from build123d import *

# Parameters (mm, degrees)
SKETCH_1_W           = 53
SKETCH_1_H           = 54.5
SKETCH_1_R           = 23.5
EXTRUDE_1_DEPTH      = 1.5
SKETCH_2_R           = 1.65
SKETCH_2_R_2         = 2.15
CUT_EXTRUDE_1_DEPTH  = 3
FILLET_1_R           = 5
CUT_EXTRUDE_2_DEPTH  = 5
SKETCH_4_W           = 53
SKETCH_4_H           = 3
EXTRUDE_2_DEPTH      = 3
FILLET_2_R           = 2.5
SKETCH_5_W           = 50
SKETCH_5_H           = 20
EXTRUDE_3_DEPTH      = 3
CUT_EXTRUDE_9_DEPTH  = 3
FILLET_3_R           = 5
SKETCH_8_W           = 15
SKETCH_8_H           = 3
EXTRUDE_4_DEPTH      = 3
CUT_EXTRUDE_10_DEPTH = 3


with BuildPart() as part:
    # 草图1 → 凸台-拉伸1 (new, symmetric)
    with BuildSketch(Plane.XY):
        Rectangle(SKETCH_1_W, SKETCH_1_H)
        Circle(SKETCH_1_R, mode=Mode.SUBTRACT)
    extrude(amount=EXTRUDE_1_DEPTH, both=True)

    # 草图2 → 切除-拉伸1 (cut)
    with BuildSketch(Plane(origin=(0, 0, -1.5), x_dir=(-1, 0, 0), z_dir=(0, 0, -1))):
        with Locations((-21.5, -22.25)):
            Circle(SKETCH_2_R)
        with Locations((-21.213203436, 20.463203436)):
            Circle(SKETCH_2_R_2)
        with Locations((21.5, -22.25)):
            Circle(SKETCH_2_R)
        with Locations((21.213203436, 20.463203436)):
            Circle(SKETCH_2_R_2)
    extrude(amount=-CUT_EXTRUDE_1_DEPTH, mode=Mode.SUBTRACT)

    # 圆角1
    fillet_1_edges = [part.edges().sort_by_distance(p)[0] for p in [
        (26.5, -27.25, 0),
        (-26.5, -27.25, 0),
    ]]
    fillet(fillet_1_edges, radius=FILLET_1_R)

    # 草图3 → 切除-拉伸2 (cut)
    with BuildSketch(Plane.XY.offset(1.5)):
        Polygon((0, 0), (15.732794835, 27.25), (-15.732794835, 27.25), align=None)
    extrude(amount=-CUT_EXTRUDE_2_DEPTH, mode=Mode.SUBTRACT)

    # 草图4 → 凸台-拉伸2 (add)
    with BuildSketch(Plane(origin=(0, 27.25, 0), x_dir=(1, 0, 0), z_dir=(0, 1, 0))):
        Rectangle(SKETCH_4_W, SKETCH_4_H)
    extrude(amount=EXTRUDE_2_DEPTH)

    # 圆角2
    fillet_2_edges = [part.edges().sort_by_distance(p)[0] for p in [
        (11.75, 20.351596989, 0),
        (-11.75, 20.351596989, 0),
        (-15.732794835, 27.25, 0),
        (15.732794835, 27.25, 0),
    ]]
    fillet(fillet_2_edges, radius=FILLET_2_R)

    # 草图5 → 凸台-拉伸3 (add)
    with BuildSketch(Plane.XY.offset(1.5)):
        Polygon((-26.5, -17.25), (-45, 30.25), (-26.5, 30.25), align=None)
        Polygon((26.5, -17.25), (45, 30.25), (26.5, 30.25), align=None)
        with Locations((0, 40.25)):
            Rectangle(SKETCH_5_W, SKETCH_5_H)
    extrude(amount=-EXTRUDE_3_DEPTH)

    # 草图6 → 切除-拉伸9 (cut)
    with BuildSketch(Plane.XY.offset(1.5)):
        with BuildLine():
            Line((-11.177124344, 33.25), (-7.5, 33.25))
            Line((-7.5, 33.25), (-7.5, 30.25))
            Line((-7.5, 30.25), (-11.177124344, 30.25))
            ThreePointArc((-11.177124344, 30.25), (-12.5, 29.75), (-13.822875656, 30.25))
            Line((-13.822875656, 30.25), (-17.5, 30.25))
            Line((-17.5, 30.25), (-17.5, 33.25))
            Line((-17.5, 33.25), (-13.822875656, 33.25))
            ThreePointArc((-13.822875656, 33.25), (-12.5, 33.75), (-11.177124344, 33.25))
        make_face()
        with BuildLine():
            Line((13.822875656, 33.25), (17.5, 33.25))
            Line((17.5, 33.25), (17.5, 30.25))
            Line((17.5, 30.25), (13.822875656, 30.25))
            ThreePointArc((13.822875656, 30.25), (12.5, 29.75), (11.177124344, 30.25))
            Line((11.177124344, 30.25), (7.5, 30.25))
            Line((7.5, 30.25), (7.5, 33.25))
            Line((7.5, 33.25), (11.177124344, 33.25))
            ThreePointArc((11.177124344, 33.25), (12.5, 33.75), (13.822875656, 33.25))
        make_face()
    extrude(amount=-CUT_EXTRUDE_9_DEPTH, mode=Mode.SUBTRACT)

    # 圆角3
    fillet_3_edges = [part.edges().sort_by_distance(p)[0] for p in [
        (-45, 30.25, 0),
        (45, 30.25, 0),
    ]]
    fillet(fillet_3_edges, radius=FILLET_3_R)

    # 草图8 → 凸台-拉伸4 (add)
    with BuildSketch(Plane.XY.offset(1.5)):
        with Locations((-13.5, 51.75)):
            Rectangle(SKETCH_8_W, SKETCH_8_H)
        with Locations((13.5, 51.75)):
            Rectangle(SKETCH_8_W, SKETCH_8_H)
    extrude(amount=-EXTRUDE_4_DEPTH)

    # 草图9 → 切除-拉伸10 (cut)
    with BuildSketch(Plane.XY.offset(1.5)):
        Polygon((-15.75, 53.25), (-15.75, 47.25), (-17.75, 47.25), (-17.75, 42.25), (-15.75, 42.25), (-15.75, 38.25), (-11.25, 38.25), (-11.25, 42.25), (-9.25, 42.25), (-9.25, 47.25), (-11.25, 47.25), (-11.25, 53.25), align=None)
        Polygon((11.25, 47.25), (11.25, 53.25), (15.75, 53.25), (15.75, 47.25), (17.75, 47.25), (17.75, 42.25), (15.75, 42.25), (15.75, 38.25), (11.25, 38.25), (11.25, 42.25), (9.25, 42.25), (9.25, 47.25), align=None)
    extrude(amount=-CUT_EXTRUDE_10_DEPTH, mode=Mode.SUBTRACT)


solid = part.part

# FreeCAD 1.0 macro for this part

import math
import FreeCAD as App
import Part
import Sketcher
from FreeCAD import Vector
Q = App.Units.Quantity


def edges_at(feature, points):
    """Names of the edges that pass closest to the given points."""
    edges = feature.Shape.Edges
    near = lambda p: min(range(len(edges)), key=lambda i: edges[i].distToShape(Part.Vertex(*p))[0])
    return sorted({f"Edge{near(p) + 1}" for p in points})

doc = App.newDocument("Part")
body = doc.addObject("PartDesign::Body", "Body")

# Sketch on XY plane
sketch1 = body.newObject("Sketcher::SketchObject", "Sketch")
sketch1.AttachmentSupport = (doc.getObject("XY_Plane"), [""])
sketch1.MapMode = "FlatFace"
sketch1.addGeometry([
    Part.LineSegment(Vector(-26.5, 27.25, 0), Vector(-26.5, -27.25, 0)),  # 0
    Part.LineSegment(Vector(-26.5, -27.25, 0), Vector(26.5, -27.25, 0)),  # 1
    Part.LineSegment(Vector(26.5, -27.25, 0), Vector(26.5, 27.25, 0)),  # 2
    Part.LineSegment(Vector(26.5, 27.25, 0), Vector(-26.5, 27.25, 0)),  # 3
    Part.Circle(Vector(0, 0, 0), Vector(0, 0, 1), 23.5),  # 4
], False)
sketch1.addConstraint([
    Sketcher.Constraint("Coincident", 0, 2, 1, 1),
    Sketcher.Constraint("Coincident", 1, 2, 2, 1),
    Sketcher.Constraint("Coincident", 2, 2, 3, 1),
    Sketcher.Constraint("Coincident", 3, 2, 0, 1),
    Sketcher.Constraint("Vertical", 0),
    Sketcher.Constraint("Horizontal", 1),
    Sketcher.Constraint("Vertical", 2),
    Sketcher.Constraint("Horizontal", 3),
    Sketcher.Constraint("Coincident", 4, 3, -1, 1),
    Sketcher.Constraint("Symmetric", 0, 2, 2, 2, -1, 1),
    Sketcher.Constraint("Diameter", 4, 47.0),
    Sketcher.Constraint("DistanceX", 1, 1, 1, 2, 53.0),
    Sketcher.Constraint("DistanceY", 0, 2, 0, 1, 54.5),
])
pad1 = body.newObject("PartDesign::Pad", "Pad")
pad1.Profile = sketch1
pad1.Length = 3
pad1.Midplane = True

# Sketch on XY plane
sketch2 = body.newObject("Sketcher::SketchObject", "Sketch001")
sketch2.AttachmentSupport = (doc.getObject("XY_Plane"), [""])
sketch2.MapMode = "FlatFace"
sketch2.AttachmentOffset = App.Placement(Vector(0, 0, -1.5), App.Rotation())
sketch2.addGeometry([
    Part.Circle(Vector(21.5, -22.25, 0), Vector(0, 0, 1), 1.65),
    Part.Circle(Vector(21.213203, 20.463203, 0), Vector(0, 0, 1), 2.15),
    Part.Circle(Vector(-21.5, -22.25, 0), Vector(0, 0, 1), 1.65),
    Part.Circle(Vector(-21.213203, 20.463203, 0), Vector(0, 0, 1), 2.15),
], False)
sketch2.addConstraint([
    Sketcher.Constraint("Equal", 0, 2),
    Sketcher.Constraint("Equal", 1, 3),
    Sketcher.Constraint("Symmetric", 0, 3, 2, 3, -2),
    Sketcher.Constraint("Symmetric", 1, 3, 3, 3, -2),
    Sketcher.Constraint("Diameter", 0, 3.3),
    Sketcher.Constraint("Diameter", 1, 4.3),
    Sketcher.Constraint("DistanceX", 2, 3, 0, 3, 43.0),
    Sketcher.Constraint("DistanceY", 0, 3, -1, 1, 22.25),
    Sketcher.Constraint("DistanceX", -1, 1, 1, 3, 21.213203),
    Sketcher.Constraint("DistanceY", -1, 1, 1, 3, 20.463203),
])
pocket1 = body.newObject("PartDesign::Pocket", "Pocket")
pocket1.Profile = sketch2
pocket1.Length = 3
pocket1.Reversed = True
doc.recompute()

fillet = body.newObject("PartDesign::Fillet", "Fillet")
fillet.Base = (pocket1, edges_at(pocket1, [(26.5, -27.25, 0), (-26.5, -27.25, 0)]))
fillet.Radius = 5

# Sketch on XY plane
sketch3 = body.newObject("Sketcher::SketchObject", "Sketch002")
sketch3.AttachmentSupport = (doc.getObject("XY_Plane"), [""])
sketch3.MapMode = "FlatFace"
sketch3.AttachmentOffset = App.Placement(Vector(0, 0, 1.5), App.Rotation())
sketch3.addGeometry([
    Part.LineSegment(Vector(0, 0, 0), Vector(15.732795, 27.25, 0)),
    Part.LineSegment(Vector(15.732795, 27.25, 0), Vector(-15.732795, 27.25, 0)),
    Part.LineSegment(Vector(-15.732795, 27.25, 0), Vector(0, 0, 0)),
], False)
sketch3.addConstraint([
    Sketcher.Constraint("Coincident", 0, 2, 1, 1),
    Sketcher.Constraint("Coincident", 1, 2, 2, 1),
    Sketcher.Constraint("Coincident", 2, 2, 0, 1),
    Sketcher.Constraint("Horizontal", 1),
    Sketcher.Constraint("Coincident", 2, 2, -1, 1),
    Sketcher.Constraint("Equal", 0, 2),
    Sketcher.Constraint("Angle", 0, Q("60 deg")),
    Sketcher.Constraint("DistanceY", -1, 1, 0, 2, 27.25),
])
pocket2 = body.newObject("PartDesign::Pocket", "Pocket001")
pocket2.Profile = sketch3
pocket2.Length = 5

# Sketch on XZ plane
sketch4 = body.newObject("Sketcher::SketchObject", "Sketch003")
sketch4.AttachmentSupport = (doc.getObject("XZ_Plane"), [""])
sketch4.MapMode = "FlatFace"
sketch4.AttachmentOffset = App.Placement(Vector(0, 0, -27.25), App.Rotation())
sketch4.addGeometry([
    Part.LineSegment(Vector(-26.5, -1.5, 0), Vector(-26.5, 1.5, 0)),
    Part.LineSegment(Vector(-26.5, 1.5, 0), Vector(26.5, 1.5, 0)),
    Part.LineSegment(Vector(26.5, 1.5, 0), Vector(26.5, -1.5, 0)),
    Part.LineSegment(Vector(26.5, -1.5, 0), Vector(-26.5, -1.5, 0)),
], False)
sketch4.addConstraint([
    Sketcher.Constraint("Coincident", 0, 2, 1, 1),
    Sketcher.Constraint("Coincident", 1, 2, 2, 1),
    Sketcher.Constraint("Coincident", 2, 2, 3, 1),
    Sketcher.Constraint("Coincident", 3, 2, 0, 1),
    Sketcher.Constraint("Vertical", 0),
    Sketcher.Constraint("Horizontal", 1),
    Sketcher.Constraint("Vertical", 2),
    Sketcher.Constraint("Horizontal", 3),
    Sketcher.Constraint("Symmetric", 0, 2, 2, 2, -1, 1),
    Sketcher.Constraint("DistanceX", 1, 1, 1, 2, 53.0),
    Sketcher.Constraint("DistanceY", 0, 1, 0, 2, 3.0),
])
pad2 = body.newObject("PartDesign::Pad", "Pad001")
pad2.Profile = sketch4
pad2.Length = 3
pad2.Reversed = True
doc.recompute()

fillet2 = body.newObject("PartDesign::Fillet", "Fillet001")
fillet2.Base = (pad2, edges_at(pad2, [
    (11.75, 20.352, 0),
    (-11.75, 20.352, 0),
    (-15.733, 27.25, 0),
    (15.733, 27.25, 0),
]))
fillet2.Radius = 2.5

# Sketch on XY plane
sketch5 = body.newObject("Sketcher::SketchObject", "Sketch004")
sketch5.AttachmentSupport = (doc.getObject("XY_Plane"), [""])
sketch5.MapMode = "FlatFace"
sketch5.AttachmentOffset = App.Placement(Vector(0, 0, 1.5), App.Rotation())
sketch5.addGeometry([
    Part.LineSegment(Vector(-45, 30.25, 0), Vector(-26.5, -17.25, 0)),  # 0
    Part.LineSegment(Vector(-26.5, -17.25, 0), Vector(-26.5, 30.25, 0)),  # 1
    Part.LineSegment(Vector(-26.5, 30.25, 0), Vector(-45, 30.25, 0)),  # 2
    Part.LineSegment(Vector(26.5, -17.25, 0), Vector(45, 30.25, 0)),  # 3
    Part.LineSegment(Vector(45, 30.25, 0), Vector(26.5, 30.25, 0)),  # 4
    Part.LineSegment(Vector(26.5, 30.25, 0), Vector(26.5, -17.25, 0)),  # 5
    Part.LineSegment(Vector(-25, 50.25, 0), Vector(-25, 30.25, 0)),  # 6
    Part.LineSegment(Vector(-25, 30.25, 0), Vector(25, 30.25, 0)),  # 7
    Part.LineSegment(Vector(25, 30.25, 0), Vector(25, 50.25, 0)),  # 8
    Part.LineSegment(Vector(25, 50.25, 0), Vector(-25, 50.25, 0)),  # 9
], False)
sketch5.addConstraint([
    Sketcher.Constraint("Coincident", 0, 2, 1, 1),
    Sketcher.Constraint("Coincident", 1, 2, 2, 1),
    Sketcher.Constraint("Coincident", 2, 2, 0, 1),
    Sketcher.Constraint("Coincident", 3, 2, 4, 1),
    Sketcher.Constraint("Coincident", 4, 2, 5, 1),
    Sketcher.Constraint("Coincident", 5, 2, 3, 1),
    Sketcher.Constraint("Coincident", 6, 2, 7, 1),
    Sketcher.Constraint("Coincident", 7, 2, 8, 1),
    Sketcher.Constraint("Coincident", 8, 2, 9, 1),
    Sketcher.Constraint("Coincident", 9, 2, 6, 1),
    Sketcher.Constraint("Vertical", 1),
    Sketcher.Constraint("Horizontal", 2),
    Sketcher.Constraint("Horizontal", 4),
    Sketcher.Constraint("Vertical", 5),
    Sketcher.Constraint("Vertical", 6),
    Sketcher.Constraint("Horizontal", 7),
    Sketcher.Constraint("Vertical", 8),
    Sketcher.Constraint("Horizontal", 9),
    Sketcher.Constraint("Symmetric", 2, 2, 3, 2, -2),
    Sketcher.Constraint("Symmetric", 0, 2, 5, 2, -2),
    Sketcher.Constraint("Horizontal", 4, 2, 6, 2),
    Sketcher.Constraint("DistanceX", 7, 1, 7, 2, 50.0),
    Sketcher.Constraint("DistanceY", 6, 2, 6, 1, 20.0),
    Sketcher.Constraint("DistanceX", 2, 2, 2, 1, 18.5),
    Sketcher.Constraint("DistanceY", 1, 1, 1, 2, 47.5),
    Sketcher.Constraint("DistanceX", 2, 2, -1, 1, 45.0),
    Sketcher.Constraint("DistanceX", 6, 2, -1, 1, 25.0),
    Sketcher.Constraint("DistanceY", 0, 2, -1, 1, 17.25),
])
pad3 = body.newObject("PartDesign::Pad", "Pad002")
pad3.Profile = sketch5
pad3.Length = 3
pad3.Reversed = True

# Sketch on XY plane
sketch6 = body.newObject("Sketcher::SketchObject", "Sketch005")
sketch6.AttachmentSupport = (doc.getObject("XY_Plane"), [""])
sketch6.MapMode = "FlatFace"
sketch6.AttachmentOffset = App.Placement(Vector(0, 0, 1.5), App.Rotation())
sketch6.addGeometry([
    Part.LineSegment(Vector(-7.5, 33.25, 0), Vector(-11.177124, 33.25, 0)),  # 0
    Part.ArcOfCircle(Part.Circle(Vector(-12.5, 31.75, 0), Vector(0, 0, 1), 2), math.radians(48.590378), math.radians(131.409622)),  # 1
    Part.LineSegment(Vector(-13.822876, 33.25, 0), Vector(-17.5, 33.25, 0)),  # 2
    Part.LineSegment(Vector(-17.5, 33.25, 0), Vector(-17.5, 30.25, 0)),  # 3
    Part.LineSegment(Vector(-17.5, 30.25, 0), Vector(-13.822876, 30.25, 0)),  # 4
    Part.ArcOfCircle(Part.Circle(Vector(-12.5, 31.75, 0), Vector(0, 0, 1), 2), math.radians(-131.409622), math.radians(-48.590378)),  # 5
    Part.LineSegment(Vector(-11.177124, 30.25, 0), Vector(-7.5, 30.25, 0)),  # 6
    Part.LineSegment(Vector(-7.5, 30.25, 0), Vector(-7.5, 33.25, 0)),  # 7
    Part.LineSegment(Vector(17.5, 33.25, 0), Vector(13.822876, 33.25, 0)),  # 8
    Part.ArcOfCircle(Part.Circle(Vector(12.5, 31.75, 0), Vector(0, 0, 1), 2), math.radians(48.590378), math.radians(131.409622)),  # 9
    Part.LineSegment(Vector(11.177124, 33.25, 0), Vector(7.5, 33.25, 0)),  # 10
    Part.LineSegment(Vector(7.5, 33.25, 0), Vector(7.5, 30.25, 0)),  # 11
    Part.LineSegment(Vector(7.5, 30.25, 0), Vector(11.177124, 30.25, 0)),  # 12
    Part.ArcOfCircle(Part.Circle(Vector(12.5, 31.75, 0), Vector(0, 0, 1), 2), math.radians(-131.409622), math.radians(-48.590378)),  # 13
    Part.LineSegment(Vector(13.822876, 30.25, 0), Vector(17.5, 30.25, 0)),  # 14
    Part.LineSegment(Vector(17.5, 30.25, 0), Vector(17.5, 33.25, 0)),  # 15
], False)
sketch6.addConstraint([
    Sketcher.Constraint("Coincident", 0, 2, 1, 1),
    Sketcher.Constraint("Coincident", 1, 2, 2, 1),
    Sketcher.Constraint("Coincident", 2, 2, 3, 1),
    Sketcher.Constraint("Coincident", 3, 2, 4, 1),
    Sketcher.Constraint("Coincident", 4, 2, 5, 1),
    Sketcher.Constraint("Coincident", 5, 2, 6, 1),
    Sketcher.Constraint("Coincident", 6, 2, 7, 1),
    Sketcher.Constraint("Coincident", 7, 2, 0, 1),
    Sketcher.Constraint("Coincident", 8, 2, 9, 1),
    Sketcher.Constraint("Coincident", 9, 2, 10, 1),
    Sketcher.Constraint("Coincident", 10, 2, 11, 1),
    Sketcher.Constraint("Coincident", 11, 2, 12, 1),
    Sketcher.Constraint("Coincident", 12, 2, 13, 1),
    Sketcher.Constraint("Coincident", 13, 2, 14, 1),
    Sketcher.Constraint("Coincident", 14, 2, 15, 1),
    Sketcher.Constraint("Coincident", 15, 2, 8, 1),
    Sketcher.Constraint("Horizontal", 0),
    Sketcher.Constraint("Horizontal", 2),
    Sketcher.Constraint("Vertical", 3),
    Sketcher.Constraint("Horizontal", 4),
    Sketcher.Constraint("Horizontal", 6),
    Sketcher.Constraint("Vertical", 7),
    Sketcher.Constraint("Horizontal", 8),
    Sketcher.Constraint("Horizontal", 10),
    Sketcher.Constraint("Vertical", 11),
    Sketcher.Constraint("Horizontal", 12),
    Sketcher.Constraint("Horizontal", 14),
    Sketcher.Constraint("Vertical", 15),
    Sketcher.Constraint("Coincident", 5, 3, 1, 3),
    Sketcher.Constraint("Coincident", 13, 3, 9, 3),
    Sketcher.Constraint("Equal", 1, 5),
    Sketcher.Constraint("Equal", 5, 9),
    Sketcher.Constraint("Equal", 9, 13),
    Sketcher.Constraint("Symmetric", 1, 3, 9, 3, -2),
    Sketcher.Constraint("Symmetric", 7, 2, 10, 2, -2),
    Sketcher.Constraint("Symmetric", 3, 2, 14, 2, -2),
    Sketcher.Constraint("Horizontal", 0, 2, 1, 2),
    Sketcher.Constraint("Horizontal", 4, 2, 5, 2),
    Sketcher.Constraint("Horizontal", 7, 2, 8, 2),
    Sketcher.Constraint("Horizontal", 6, 2, 11, 2),
    Sketcher.Constraint("Vertical", 1, 2, 4, 2),
    Sketcher.Constraint("Equal", 0, 2),
    Sketcher.Constraint("Radius", 1, 2.0),
    Sketcher.Constraint("DistanceY", 3, 2, 3, 1, 3.0),
    Sketcher.Constraint("DistanceX", 1, 3, 9, 3, 25.0),
    Sketcher.Constraint("DistanceX", 2, 2, 5, 3, 5.0),
    Sketcher.Constraint("DistanceY", -1, 1, 1, 3, 31.75),
])
pocket3 = body.newObject("PartDesign::Pocket", "Pocket002")
pocket3.Profile = sketch6
pocket3.Length = 3
doc.recompute()

fillet3 = body.newObject("PartDesign::Fillet", "Fillet002")
fillet3.Base = (pocket3, edges_at(pocket3, [(-45, 30.25, 0), (45, 30.25, 0)]))
fillet3.Radius = 5

# Sketch on XY plane
sketch7 = body.newObject("Sketcher::SketchObject", "Sketch006")
sketch7.AttachmentSupport = (doc.getObject("XY_Plane"), [""])
sketch7.MapMode = "FlatFace"
sketch7.AttachmentOffset = App.Placement(Vector(0, 0, 1.5), App.Rotation())
sketch7.addGeometry([
    Part.LineSegment(Vector(-21, 53.25, 0), Vector(-21, 50.25, 0)),  # 0
    Part.LineSegment(Vector(-21, 50.25, 0), Vector(-6, 50.25, 0)),  # 1
    Part.LineSegment(Vector(-6, 50.25, 0), Vector(-6, 53.25, 0)),  # 2
    Part.LineSegment(Vector(-6, 53.25, 0), Vector(-21, 53.25, 0)),  # 3
    Part.LineSegment(Vector(6, 53.25, 0), Vector(6, 50.25, 0)),  # 4
    Part.LineSegment(Vector(6, 50.25, 0), Vector(21, 50.25, 0)),  # 5
    Part.LineSegment(Vector(21, 50.25, 0), Vector(21, 53.25, 0)),  # 6
    Part.LineSegment(Vector(21, 53.25, 0), Vector(6, 53.25, 0)),  # 7
], False)
sketch7.addConstraint([
    Sketcher.Constraint("Coincident", 0, 2, 1, 1),
    Sketcher.Constraint("Coincident", 1, 2, 2, 1),
    Sketcher.Constraint("Coincident", 2, 2, 3, 1),
    Sketcher.Constraint("Coincident", 3, 2, 0, 1),
    Sketcher.Constraint("Coincident", 4, 2, 5, 1),
    Sketcher.Constraint("Coincident", 5, 2, 6, 1),
    Sketcher.Constraint("Coincident", 6, 2, 7, 1),
    Sketcher.Constraint("Coincident", 7, 2, 4, 1),
    Sketcher.Constraint("Vertical", 0),
    Sketcher.Constraint("Horizontal", 1),
    Sketcher.Constraint("Vertical", 2),
    Sketcher.Constraint("Horizontal", 3),
    Sketcher.Constraint("Vertical", 4),
    Sketcher.Constraint("Horizontal", 5),
    Sketcher.Constraint("Vertical", 6),
    Sketcher.Constraint("Horizontal", 7),
    Sketcher.Constraint("Symmetric", 1, 2, 4, 2, -2),
    Sketcher.Constraint("Symmetric", 3, 2, 6, 2, -2),
    Sketcher.Constraint("DistanceX", 1, 1, 1, 2, 15.0),
    Sketcher.Constraint("DistanceY", 0, 2, 0, 1, 3.0),
    Sketcher.Constraint("DistanceX", 0, 2, -1, 1, 21.0),
    Sketcher.Constraint("DistanceY", -1, 1, 0, 2, 50.25),
])
pad4 = body.newObject("PartDesign::Pad", "Pad003")
pad4.Profile = sketch7
pad4.Length = 3
pad4.Reversed = True

# Sketch on XY plane
sketch8 = body.newObject("Sketcher::SketchObject", "Sketch007")
sketch8.AttachmentSupport = (doc.getObject("XY_Plane"), [""])
sketch8.MapMode = "FlatFace"
sketch8.AttachmentOffset = App.Placement(Vector(0, 0, 1.5), App.Rotation())
sketch8.addGeometry([
    Part.LineSegment(Vector(-15.75, 53.25, 0), Vector(-15.75, 47.25, 0)),  # 0
    Part.LineSegment(Vector(-15.75, 47.25, 0), Vector(-17.75, 47.25, 0)),  # 1
    Part.LineSegment(Vector(-17.75, 47.25, 0), Vector(-17.75, 42.25, 0)),  # 2
    Part.LineSegment(Vector(-17.75, 42.25, 0), Vector(-15.75, 42.25, 0)),  # 3
    Part.LineSegment(Vector(-15.75, 42.25, 0), Vector(-15.75, 38.25, 0)),  # 4
    Part.LineSegment(Vector(-15.75, 38.25, 0), Vector(-11.25, 38.25, 0)),  # 5
    Part.LineSegment(Vector(-11.25, 38.25, 0), Vector(-11.25, 42.25, 0)),  # 6
    Part.LineSegment(Vector(-11.25, 42.25, 0), Vector(-9.25, 42.25, 0)),  # 7
    Part.LineSegment(Vector(-9.25, 42.25, 0), Vector(-9.25, 47.25, 0)),  # 8
    Part.LineSegment(Vector(-9.25, 47.25, 0), Vector(-11.25, 47.25, 0)),  # 9
    Part.LineSegment(Vector(-11.25, 47.25, 0), Vector(-11.25, 53.25, 0)),  # 10
    Part.LineSegment(Vector(-11.25, 53.25, 0), Vector(-15.75, 53.25, 0)),  # 11
    Part.LineSegment(Vector(11.25, 53.25, 0), Vector(11.25, 47.25, 0)),  # 12
    Part.LineSegment(Vector(11.25, 47.25, 0), Vector(9.25, 47.25, 0)),  # 13
    Part.LineSegment(Vector(9.25, 47.25, 0), Vector(9.25, 42.25, 0)),  # 14
    Part.LineSegment(Vector(9.25, 42.25, 0), Vector(11.25, 42.25, 0)),  # 15
    Part.LineSegment(Vector(11.25, 42.25, 0), Vector(11.25, 38.25, 0)),  # 16
    Part.LineSegment(Vector(11.25, 38.25, 0), Vector(15.75, 38.25, 0)),  # 17
    Part.LineSegment(Vector(15.75, 38.25, 0), Vector(15.75, 42.25, 0)),  # 18
    Part.LineSegment(Vector(15.75, 42.25, 0), Vector(17.75, 42.25, 0)),  # 19
    Part.LineSegment(Vector(17.75, 42.25, 0), Vector(17.75, 47.25, 0)),  # 20
    Part.LineSegment(Vector(17.75, 47.25, 0), Vector(15.75, 47.25, 0)),  # 21
    Part.LineSegment(Vector(15.75, 47.25, 0), Vector(15.75, 53.25, 0)),  # 22
    Part.LineSegment(Vector(15.75, 53.25, 0), Vector(11.25, 53.25, 0)),  # 23
], False)
sketch8.addConstraint([
    Sketcher.Constraint("Coincident", 0, 2, 1, 1),
    Sketcher.Constraint("Coincident", 1, 2, 2, 1),
    Sketcher.Constraint("Coincident", 2, 2, 3, 1),
    Sketcher.Constraint("Coincident", 3, 2, 4, 1),
    Sketcher.Constraint("Coincident", 4, 2, 5, 1),
    Sketcher.Constraint("Coincident", 5, 2, 6, 1),
    Sketcher.Constraint("Coincident", 6, 2, 7, 1),
    Sketcher.Constraint("Coincident", 7, 2, 8, 1),
    Sketcher.Constraint("Coincident", 8, 2, 9, 1),
    Sketcher.Constraint("Coincident", 9, 2, 10, 1),
    Sketcher.Constraint("Coincident", 10, 2, 11, 1),
    Sketcher.Constraint("Coincident", 11, 2, 0, 1),
    Sketcher.Constraint("Coincident", 12, 2, 13, 1),
    Sketcher.Constraint("Coincident", 13, 2, 14, 1),
    Sketcher.Constraint("Coincident", 14, 2, 15, 1),
    Sketcher.Constraint("Coincident", 15, 2, 16, 1),
    Sketcher.Constraint("Coincident", 16, 2, 17, 1),
    Sketcher.Constraint("Coincident", 17, 2, 18, 1),
    Sketcher.Constraint("Coincident", 18, 2, 19, 1),
    Sketcher.Constraint("Coincident", 19, 2, 20, 1),
    Sketcher.Constraint("Coincident", 20, 2, 21, 1),
    Sketcher.Constraint("Coincident", 21, 2, 22, 1),
    Sketcher.Constraint("Coincident", 22, 2, 23, 1),
    Sketcher.Constraint("Coincident", 23, 2, 12, 1),
    Sketcher.Constraint("Vertical", 0),
    Sketcher.Constraint("Horizontal", 1),
    Sketcher.Constraint("Vertical", 2),
    Sketcher.Constraint("Horizontal", 3),
    Sketcher.Constraint("Vertical", 4),
    Sketcher.Constraint("Horizontal", 5),
    Sketcher.Constraint("Vertical", 6),
    Sketcher.Constraint("Horizontal", 7),
    Sketcher.Constraint("Vertical", 8),
    Sketcher.Constraint("Horizontal", 9),
    Sketcher.Constraint("Vertical", 10),
    Sketcher.Constraint("Horizontal", 11),
    Sketcher.Constraint("Vertical", 12),
    Sketcher.Constraint("Horizontal", 13),
    Sketcher.Constraint("Vertical", 14),
    Sketcher.Constraint("Horizontal", 15),
    Sketcher.Constraint("Vertical", 16),
    Sketcher.Constraint("Horizontal", 17),
    Sketcher.Constraint("Vertical", 18),
    Sketcher.Constraint("Horizontal", 19),
    Sketcher.Constraint("Vertical", 20),
    Sketcher.Constraint("Horizontal", 21),
    Sketcher.Constraint("Vertical", 22),
    Sketcher.Constraint("Horizontal", 23),
    Sketcher.Constraint("Symmetric", 9, 2, 12, 2, -2),
    Sketcher.Constraint("Symmetric", 7, 2, 14, 2, -2),
    Sketcher.Constraint("Symmetric", 5, 2, 16, 2, -2),
    Sketcher.Constraint("Symmetric", 3, 2, 18, 2, -2),
    Sketcher.Constraint("Symmetric", 1, 2, 20, 2, -2),
    Sketcher.Constraint("Symmetric", 11, 2, 22, 2, -2),
    Sketcher.Constraint("Horizontal", 3, 2, 6, 2),
    Sketcher.Constraint("Horizontal", 1, 2, 8, 2),
    Sketcher.Constraint("Vertical", 0, 2, 3, 2),
    Sketcher.Constraint("Vertical", 6, 2, 9, 2),
    Sketcher.Constraint("Equal", 3, 7),
    Sketcher.Constraint("DistanceX", 1, 2, 1, 1, 2.0),
    Sketcher.Constraint("DistanceY", 0, 2, 0, 1, 6.0),
    Sketcher.Constraint("DistanceY", 2, 2, 2, 1, 5.0),
    Sketcher.Constraint("DistanceY", 4, 2, 4, 1, 4.0),
    Sketcher.Constraint("DistanceX", 5, 1, 5, 2, 4.5),
    Sketcher.Constraint("DistanceX", 8, 2, 12, 2, 20.5),
    Sketcher.Constraint("DistanceY", -1, 1, 0, 2, 47.25),
])
pocket4 = body.newObject("PartDesign::Pocket", "Pocket003")
pocket4.Profile = sketch8
pocket4.Length = 3

doc.recompute()
